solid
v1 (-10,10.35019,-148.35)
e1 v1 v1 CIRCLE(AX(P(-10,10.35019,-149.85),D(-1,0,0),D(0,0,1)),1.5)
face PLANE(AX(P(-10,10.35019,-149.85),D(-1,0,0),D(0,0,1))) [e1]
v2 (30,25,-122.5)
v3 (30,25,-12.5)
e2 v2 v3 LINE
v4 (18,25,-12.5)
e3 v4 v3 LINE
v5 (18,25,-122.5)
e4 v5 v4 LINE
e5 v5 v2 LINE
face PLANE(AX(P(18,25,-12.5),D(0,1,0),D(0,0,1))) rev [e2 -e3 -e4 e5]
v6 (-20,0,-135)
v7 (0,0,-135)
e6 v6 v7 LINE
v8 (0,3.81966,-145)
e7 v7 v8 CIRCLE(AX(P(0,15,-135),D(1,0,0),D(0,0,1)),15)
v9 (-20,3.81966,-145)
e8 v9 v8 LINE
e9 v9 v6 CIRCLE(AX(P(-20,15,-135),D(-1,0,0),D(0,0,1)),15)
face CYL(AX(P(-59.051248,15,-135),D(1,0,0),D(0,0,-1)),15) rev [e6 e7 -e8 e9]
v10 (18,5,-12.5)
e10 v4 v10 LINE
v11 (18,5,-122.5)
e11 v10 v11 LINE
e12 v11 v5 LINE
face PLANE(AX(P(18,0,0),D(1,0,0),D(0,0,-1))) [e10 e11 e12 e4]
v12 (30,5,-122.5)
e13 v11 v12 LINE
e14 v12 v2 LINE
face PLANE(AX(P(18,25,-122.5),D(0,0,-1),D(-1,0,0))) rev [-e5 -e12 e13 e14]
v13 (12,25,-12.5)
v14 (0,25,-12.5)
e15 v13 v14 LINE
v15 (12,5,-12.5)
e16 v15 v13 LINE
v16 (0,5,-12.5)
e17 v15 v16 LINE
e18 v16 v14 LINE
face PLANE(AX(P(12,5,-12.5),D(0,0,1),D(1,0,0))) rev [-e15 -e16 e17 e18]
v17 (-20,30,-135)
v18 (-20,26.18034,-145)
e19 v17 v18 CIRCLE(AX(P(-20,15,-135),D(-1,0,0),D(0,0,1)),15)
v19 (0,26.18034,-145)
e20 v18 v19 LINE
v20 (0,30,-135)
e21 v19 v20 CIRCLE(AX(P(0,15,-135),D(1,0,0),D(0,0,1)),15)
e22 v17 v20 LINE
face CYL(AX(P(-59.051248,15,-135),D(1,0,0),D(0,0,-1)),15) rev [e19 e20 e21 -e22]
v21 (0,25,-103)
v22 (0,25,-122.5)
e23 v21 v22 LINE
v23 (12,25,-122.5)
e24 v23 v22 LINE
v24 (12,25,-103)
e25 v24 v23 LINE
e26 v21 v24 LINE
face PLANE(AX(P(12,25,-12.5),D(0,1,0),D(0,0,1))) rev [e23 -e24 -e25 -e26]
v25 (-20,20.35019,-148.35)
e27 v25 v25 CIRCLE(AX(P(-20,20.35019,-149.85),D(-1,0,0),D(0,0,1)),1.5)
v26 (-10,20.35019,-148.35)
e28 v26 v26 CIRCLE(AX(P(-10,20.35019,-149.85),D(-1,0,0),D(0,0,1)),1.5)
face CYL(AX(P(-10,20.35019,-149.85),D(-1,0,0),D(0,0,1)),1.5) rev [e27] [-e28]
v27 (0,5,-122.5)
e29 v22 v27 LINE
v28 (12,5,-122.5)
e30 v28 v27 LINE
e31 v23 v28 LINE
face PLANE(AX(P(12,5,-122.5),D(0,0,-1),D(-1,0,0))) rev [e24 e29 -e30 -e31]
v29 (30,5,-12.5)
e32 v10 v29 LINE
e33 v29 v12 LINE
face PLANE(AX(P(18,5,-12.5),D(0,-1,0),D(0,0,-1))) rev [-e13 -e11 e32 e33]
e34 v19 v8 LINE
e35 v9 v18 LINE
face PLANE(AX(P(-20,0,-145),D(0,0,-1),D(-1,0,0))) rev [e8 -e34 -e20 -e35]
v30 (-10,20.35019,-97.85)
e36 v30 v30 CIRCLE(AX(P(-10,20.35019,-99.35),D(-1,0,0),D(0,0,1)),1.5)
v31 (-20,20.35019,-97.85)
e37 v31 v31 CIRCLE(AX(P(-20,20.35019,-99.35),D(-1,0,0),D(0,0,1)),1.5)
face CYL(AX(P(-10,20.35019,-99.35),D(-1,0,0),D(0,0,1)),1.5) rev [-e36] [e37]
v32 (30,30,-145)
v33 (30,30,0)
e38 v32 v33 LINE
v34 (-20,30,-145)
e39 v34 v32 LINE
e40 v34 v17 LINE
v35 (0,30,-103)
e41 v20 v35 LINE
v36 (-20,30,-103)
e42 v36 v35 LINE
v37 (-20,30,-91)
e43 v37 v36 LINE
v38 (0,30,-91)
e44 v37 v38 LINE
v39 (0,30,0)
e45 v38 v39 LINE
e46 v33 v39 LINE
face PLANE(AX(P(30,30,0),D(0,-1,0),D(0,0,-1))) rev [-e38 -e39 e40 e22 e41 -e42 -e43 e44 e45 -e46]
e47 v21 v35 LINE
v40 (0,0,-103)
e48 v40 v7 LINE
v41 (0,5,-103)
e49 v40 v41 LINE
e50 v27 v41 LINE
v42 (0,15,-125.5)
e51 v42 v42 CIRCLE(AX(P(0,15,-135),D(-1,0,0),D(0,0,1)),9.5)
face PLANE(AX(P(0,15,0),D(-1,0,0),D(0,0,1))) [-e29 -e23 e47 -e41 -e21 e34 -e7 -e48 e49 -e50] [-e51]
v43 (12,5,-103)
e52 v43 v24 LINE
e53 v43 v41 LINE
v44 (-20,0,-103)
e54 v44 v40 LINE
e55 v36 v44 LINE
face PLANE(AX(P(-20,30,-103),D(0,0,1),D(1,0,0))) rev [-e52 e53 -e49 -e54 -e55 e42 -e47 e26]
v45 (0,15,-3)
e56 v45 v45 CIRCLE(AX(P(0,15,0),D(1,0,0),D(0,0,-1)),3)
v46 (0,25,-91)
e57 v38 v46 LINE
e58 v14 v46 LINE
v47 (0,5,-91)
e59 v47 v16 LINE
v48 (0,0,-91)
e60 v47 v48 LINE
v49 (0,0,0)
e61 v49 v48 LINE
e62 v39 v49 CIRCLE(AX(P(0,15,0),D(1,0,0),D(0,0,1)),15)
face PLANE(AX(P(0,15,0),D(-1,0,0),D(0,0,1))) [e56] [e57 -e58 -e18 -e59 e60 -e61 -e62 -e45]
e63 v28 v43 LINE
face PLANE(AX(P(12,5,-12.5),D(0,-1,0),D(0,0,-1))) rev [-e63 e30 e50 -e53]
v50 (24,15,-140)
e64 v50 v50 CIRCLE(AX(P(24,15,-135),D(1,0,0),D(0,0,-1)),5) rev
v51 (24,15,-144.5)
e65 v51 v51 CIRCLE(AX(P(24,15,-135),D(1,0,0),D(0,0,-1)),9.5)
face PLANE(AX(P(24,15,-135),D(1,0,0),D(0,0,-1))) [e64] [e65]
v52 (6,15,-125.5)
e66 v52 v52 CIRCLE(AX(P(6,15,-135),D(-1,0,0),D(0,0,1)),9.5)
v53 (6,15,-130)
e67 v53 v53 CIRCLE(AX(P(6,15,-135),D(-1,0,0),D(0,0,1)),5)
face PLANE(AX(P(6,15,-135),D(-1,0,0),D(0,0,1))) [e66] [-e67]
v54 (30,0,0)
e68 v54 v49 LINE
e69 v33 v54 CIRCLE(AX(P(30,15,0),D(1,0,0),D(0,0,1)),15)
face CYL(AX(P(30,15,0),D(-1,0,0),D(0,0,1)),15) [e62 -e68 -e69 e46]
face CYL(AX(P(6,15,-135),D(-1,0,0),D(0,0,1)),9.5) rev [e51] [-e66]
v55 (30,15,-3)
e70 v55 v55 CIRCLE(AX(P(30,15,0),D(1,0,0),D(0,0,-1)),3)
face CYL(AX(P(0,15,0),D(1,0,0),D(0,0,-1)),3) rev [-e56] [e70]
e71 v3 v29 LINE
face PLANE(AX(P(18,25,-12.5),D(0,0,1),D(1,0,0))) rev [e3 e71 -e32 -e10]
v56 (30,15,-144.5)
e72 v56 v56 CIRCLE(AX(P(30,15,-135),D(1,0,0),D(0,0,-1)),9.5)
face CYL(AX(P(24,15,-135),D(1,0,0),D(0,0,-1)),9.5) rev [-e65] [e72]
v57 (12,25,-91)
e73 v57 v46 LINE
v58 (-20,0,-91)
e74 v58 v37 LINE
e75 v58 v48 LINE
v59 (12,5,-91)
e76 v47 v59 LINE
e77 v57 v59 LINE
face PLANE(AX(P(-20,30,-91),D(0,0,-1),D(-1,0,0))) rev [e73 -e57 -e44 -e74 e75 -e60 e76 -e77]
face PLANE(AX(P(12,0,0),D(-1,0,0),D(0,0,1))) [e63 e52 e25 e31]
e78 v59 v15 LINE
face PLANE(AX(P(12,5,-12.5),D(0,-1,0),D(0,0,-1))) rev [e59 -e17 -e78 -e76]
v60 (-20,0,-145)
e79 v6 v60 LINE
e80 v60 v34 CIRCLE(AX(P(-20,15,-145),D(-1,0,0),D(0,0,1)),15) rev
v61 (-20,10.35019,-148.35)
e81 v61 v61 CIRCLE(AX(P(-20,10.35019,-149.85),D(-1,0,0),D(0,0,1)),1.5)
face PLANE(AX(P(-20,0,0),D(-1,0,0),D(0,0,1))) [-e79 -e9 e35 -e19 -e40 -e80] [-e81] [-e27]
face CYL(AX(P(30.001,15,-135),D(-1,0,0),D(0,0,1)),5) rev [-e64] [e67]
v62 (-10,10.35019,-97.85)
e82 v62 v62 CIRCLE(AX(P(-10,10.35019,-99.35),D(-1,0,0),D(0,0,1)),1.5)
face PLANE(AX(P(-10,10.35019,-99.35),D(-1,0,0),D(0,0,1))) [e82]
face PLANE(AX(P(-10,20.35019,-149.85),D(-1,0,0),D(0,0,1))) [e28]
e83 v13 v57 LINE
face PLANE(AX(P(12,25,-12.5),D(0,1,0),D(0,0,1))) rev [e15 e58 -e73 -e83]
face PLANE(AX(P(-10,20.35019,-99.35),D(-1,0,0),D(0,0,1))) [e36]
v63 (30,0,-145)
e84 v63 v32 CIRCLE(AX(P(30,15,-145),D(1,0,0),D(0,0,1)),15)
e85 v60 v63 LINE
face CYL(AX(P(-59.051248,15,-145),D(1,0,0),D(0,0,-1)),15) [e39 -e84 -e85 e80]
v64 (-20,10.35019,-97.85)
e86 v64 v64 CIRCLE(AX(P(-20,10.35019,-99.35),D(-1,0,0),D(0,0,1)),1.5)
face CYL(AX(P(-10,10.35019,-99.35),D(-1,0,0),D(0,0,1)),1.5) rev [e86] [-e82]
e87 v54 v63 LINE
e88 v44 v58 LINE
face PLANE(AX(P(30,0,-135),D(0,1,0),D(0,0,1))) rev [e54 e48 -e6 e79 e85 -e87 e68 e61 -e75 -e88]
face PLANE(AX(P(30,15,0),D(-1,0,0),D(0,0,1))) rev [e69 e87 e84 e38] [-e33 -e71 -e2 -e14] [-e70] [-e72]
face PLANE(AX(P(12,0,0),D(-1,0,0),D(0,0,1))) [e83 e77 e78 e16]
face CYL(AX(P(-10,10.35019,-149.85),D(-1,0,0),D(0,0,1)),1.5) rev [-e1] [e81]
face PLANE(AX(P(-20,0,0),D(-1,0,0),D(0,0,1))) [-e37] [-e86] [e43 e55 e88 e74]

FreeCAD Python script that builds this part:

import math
import FreeCAD as App
import Part
import Sketcher
from FreeCAD import Vector
Q = App.Units.Quantity

doc = App.newDocument("Part")
body = doc.addObject("PartDesign::Body", "Body")

# Sketch on YZ plane
sketch1 = doc.addObject("Sketcher::SketchObject", "Sketch")
body.addObject(sketch1)
sketch1.AttachmentSupport = (doc.YZ_Plane, [""])
sketch1.MapMode = "FlatFace"
sketch1.addGeometry(Part.LineSegment(Vector(30, -135, 0), Vector(30, 0, 0)), False)
sketch1.addGeometry(Part.ArcOfCircle(Part.Circle(Vector(15, 0, 0), Vector(0, 0, 1), 15), math.radians(0), math.radians(180)), False)
sketch1.addGeometry(Part.LineSegment(Vector(0, 0, 0), Vector(0, -135, 0)), False)
sketch1.addGeometry(Part.ArcOfCircle(Part.Circle(Vector(15, -135, 0), Vector(0, 0, 1), 15), math.radians(180), math.radians(360)), False)
sketch1.addConstraint(Sketcher.Constraint("Tangent", 0, 2, 1, 1))
sketch1.addConstraint(Sketcher.Constraint("Tangent", 1, 2, 2, 1))
sketch1.addConstraint(Sketcher.Constraint("Tangent", 2, 2, 3, 1))
sketch1.addConstraint(Sketcher.Constraint("Tangent", 3, 2, 0, 1))
sketch1.addConstraint(Sketcher.Constraint("Vertical", 0))
sketch1.addConstraint(Sketcher.Constraint("Vertical", 2))
sketch1.addConstraint(Sketcher.Constraint("Coincident", 1, 2, -1, 1))
sketch1.addConstraint(Sketcher.Constraint("Radius", 1, Q("15 mm")))
sketch1.addConstraint(Sketcher.Constraint("DistanceY", 0, 1, 0, 2, Q("135 mm")))
pad1 = doc.addObject("PartDesign::Pad", "Pad")
body.addObject(pad1)
pad1.Profile = sketch1
pad1.Length = 30

# Sketch on YZ plane
sketch2 = doc.addObject("Sketcher::SketchObject", "Sketch001")
body.addObject(sketch2)
sketch2.AttachmentSupport = (doc.YZ_Plane, [""])
sketch2.MapMode = "FlatFace"
sketch2.AttachmentOffset = App.Placement(Vector(0, 0, 30), App.Rotation())
sketch2.addGeometry(Part.Circle(Vector(15, 0, 0), Vector(0, 0, 1), 3), False)
sketch2.addConstraint(Sketcher.Constraint("PointOnObject", 0, 3, -1))
sketch2.addConstraint(Sketcher.Constraint("Diameter", 0, Q("6 mm")))
sketch2.addConstraint(Sketcher.Constraint("DistanceX", -1, 1, 0, 3, Q("15 mm")))
pocket1 = doc.addObject("PartDesign::Pocket", "Pocket")
body.addObject(pocket1)
pocket1.Profile = sketch2
pocket1.Length = 30

# Sketch on YZ plane
sketch3 = doc.addObject("Sketcher::SketchObject", "Sketch002")
body.addObject(sketch3)
sketch3.AttachmentSupport = (doc.YZ_Plane, [""])
sketch3.MapMode = "FlatFace"
sketch3.AttachmentOffset = App.Placement(Vector(0, 0, 30), App.Rotation())
sketch3.addGeometry(Part.Circle(Vector(15, -135, 0), Vector(0, 0, 1), 10), False)
sketch3.addConstraint(Sketcher.Constraint("Diameter", 0, Q("19 mm")))
sketch3.addConstraint(Sketcher.Constraint("DistanceX", -1, 1, 0, 3, Q("15 mm")))
sketch3.addConstraint(Sketcher.Constraint("DistanceY", 0, 3, -1, 1, Q("135 mm")))
pocket2 = doc.addObject("PartDesign::Pocket", "Pocket001")
body.addObject(pocket2)
pocket2.Profile = sketch3
pocket2.Length = 6

# Sketch on YZ plane
sketch4 = doc.addObject("Sketcher::SketchObject", "Sketch003")
body.addObject(sketch4)
sketch4.AttachmentSupport = (doc.YZ_Plane, [""])
sketch4.MapMode = "FlatFace"
sketch4.addGeometry(Part.Circle(Vector(15, -135, 0), Vector(0, 0, 1), 10), False)
sketch4.addConstraint(Sketcher.Constraint("Diameter", 0, Q("19 mm")))
sketch4.addConstraint(Sketcher.Constraint("DistanceX", -1, 1, 0, 3, Q("15 mm")))
sketch4.addConstraint(Sketcher.Constraint("DistanceY", 0, 3, -1, 1, Q("135 mm")))
pocket3 = doc.addObject("PartDesign::Pocket", "Pocket002")
body.addObject(pocket3)
pocket3.Profile = sketch4
pocket3.Length = 6
pocket3.Reversed = True

# Sketch on YZ plane
sketch5 = doc.addObject("Sketcher::SketchObject", "Sketch004")
body.addObject(sketch5)
sketch5.AttachmentSupport = (doc.YZ_Plane, [""])
sketch5.MapMode = "FlatFace"
sketch5.AttachmentOffset = App.Placement(Vector(0, 0, 6), App.Rotation())
sketch5.addGeometry(Part.Circle(Vector(15, -135, 0), Vector(0, 0, 1), 5), False)
sketch5.addConstraint(Sketcher.Constraint("Diameter", 0, Q("10 mm")))
sketch5.addConstraint(Sketcher.Constraint("DistanceX", -1, 1, 0, 3, Q("15 mm")))
sketch5.addConstraint(Sketcher.Constraint("DistanceY", 0, 3, -1, 1, Q("135 mm")))
pocket4 = doc.addObject("PartDesign::Pocket", "Pocket003")
body.addObject(pocket4)
pocket4.Profile = sketch5
pocket4.Type = "UpToFirst"
pocket4.Reversed = True

# Sketch on YZ plane
sketch6 = doc.addObject("Sketcher::SketchObject", "Sketch005")
body.addObject(sketch6)
sketch6.AttachmentSupport = (doc.YZ_Plane, [""])
sketch6.MapMode = "FlatFace"
sketch6.AttachmentOffset = App.Placement(Vector(0, 0, 30), App.Rotation())
sketch6.addGeometry(Part.LineSegment(Vector(25, -12, 0), Vector(5, -12, 0)), False)
sketch6.addGeometry(Part.LineSegment(Vector(5, -12, 0), Vector(5, -122, 0)), False)
sketch6.addGeometry(Part.LineSegment(Vector(5, -122, 0), Vector(25, -122, 0)), False)
sketch6.addGeometry(Part.LineSegment(Vector(25, -122, 0), Vector(25, -12, 0)), False)
sketch6.addConstraint(Sketcher.Constraint("Coincident", 0, 2, 1, 1))
sketch6.addConstraint(Sketcher.Constraint("Coincident", 1, 2, 2, 1))
sketch6.addConstraint(Sketcher.Constraint("Coincident", 2, 2, 3, 1))
sketch6.addConstraint(Sketcher.Constraint("Coincident", 3, 2, 0, 1))
sketch6.addConstraint(Sketcher.Constraint("Horizontal", 0))
sketch6.addConstraint(Sketcher.Constraint("Vertical", 1))
sketch6.addConstraint(Sketcher.Constraint("Horizontal", 2))
sketch6.addConstraint(Sketcher.Constraint("Vertical", 3))
sketch6.addConstraint(Sketcher.Constraint("DistanceX", 0, 2, 0, 1, Q("20 mm")))
sketch6.addConstraint(Sketcher.Constraint("DistanceY", 1, 2, 1, 1, Q("110 mm")))
sketch6.addConstraint(Sketcher.Constraint("DistanceX", -1, 1, 0, 2, Q("5 mm")))
sketch6.addConstraint(Sketcher.Constraint("DistanceY", 0, 2, -1, 1, Q("12.5 mm")))
pocket5 = doc.addObject("PartDesign::Pocket", "Pocket004")
body.addObject(pocket5)
pocket5.Profile = sketch6
pocket5.Length = 12

# Sketch on YZ plane
sketch7 = doc.addObject("Sketcher::SketchObject", "Sketch006")
body.addObject(sketch7)
sketch7.AttachmentSupport = (doc.YZ_Plane, [""])
sketch7.MapMode = "FlatFace"
sketch7.addGeometry(Part.LineSegment(Vector(25, -122, 0), Vector(5, -122, 0)), False)
sketch7.addGeometry(Part.LineSegment(Vector(5, -122, 0), Vector(5, -12, 0)), False)
sketch7.addGeometry(Part.LineSegment(Vector(5, -12, 0), Vector(25, -12, 0)), False)
sketch7.addGeometry(Part.LineSegment(Vector(25, -12, 0), Vector(25, -122, 0)), False)
sketch7.addConstraint(Sketcher.Constraint("Coincident", 0, 2, 1, 1))
sketch7.addConstraint(Sketcher.Constraint("Coincident", 1, 2, 2, 1))
sketch7.addConstraint(Sketcher.Constraint("Coincident", 2, 2, 3, 1))
sketch7.addConstraint(Sketcher.Constraint("Coincident", 3, 2, 0, 1))
sketch7.addConstraint(Sketcher.Constraint("Horizontal", 0))
sketch7.addConstraint(Sketcher.Constraint("Vertical", 1))
sketch7.addConstraint(Sketcher.Constraint("Horizontal", 2))
sketch7.addConstraint(Sketcher.Constraint("Vertical", 3))
sketch7.addConstraint(Sketcher.Constraint("DistanceX", 0, 2, 0, 1, Q("20 mm")))
sketch7.addConstraint(Sketcher.Constraint("DistanceY", 1, 1, 1, 2, Q("110 mm")))
sketch7.addConstraint(Sketcher.Constraint("DistanceX", -1, 1, 0, 2, Q("5 mm")))
sketch7.addConstraint(Sketcher.Constraint("DistanceY", 0, 2, -1, 1, Q("122.5 mm")))
pocket6 = doc.addObject("PartDesign::Pocket", "Pocket005")
body.addObject(pocket6)
pocket6.Profile = sketch7
pocket6.Length = 12
pocket6.Reversed = True

# Sketch on YZ plane
sketch8 = doc.addObject("Sketcher::SketchObject", "Sketch007")
body.addObject(sketch8)
sketch8.AttachmentSupport = (doc.YZ_Plane, [""])
sketch8.MapMode = "FlatFace"
sketch8.AttachmentOffset = App.Placement(Vector(0, 0, 12), App.Rotation())
sketch8.addGeometry(Part.LineSegment(Vector(30, -103, 0), Vector(0, -103, 0)), False)
sketch8.addGeometry(Part.LineSegment(Vector(0, -103, 0), Vector(0, -91, 0)), False)
sketch8.addGeometry(Part.LineSegment(Vector(0, -91, 0), Vector(30, -91, 0)), False)
sketch8.addGeometry(Part.LineSegment(Vector(30, -91, 0), Vector(30, -103, 0)), False)
sketch8.addGeometry(Part.LineSegment(Vector(30, -157, 0), Vector(0, -157, 0)), False)
sketch8.addGeometry(Part.LineSegment(Vector(0, -157, 0), Vector(0, -145, 0)), False)
sketch8.addGeometry(Part.LineSegment(Vector(0, -145, 0), Vector(30, -145, 0)), False)
sketch8.addGeometry(Part.LineSegment(Vector(30, -145, 0), Vector(30, -157, 0)), False)
sketch8.addConstraint(Sketcher.Constraint("Coincident", 0, 2, 1, 1))
sketch8.addConstraint(Sketcher.Constraint("Coincident", 1, 2, 2, 1))
sketch8.addConstraint(Sketcher.Constraint("Coincident", 2, 2, 3, 1))
sketch8.addConstraint(Sketcher.Constraint("Coincident", 3, 2, 0, 1))
sketch8.addConstraint(Sketcher.Constraint("Coincident", 4, 2, 5, 1))
sketch8.addConstraint(Sketcher.Constraint("Coincident", 5, 2, 6, 1))
sketch8.addConstraint(Sketcher.Constraint("Coincident", 6, 2, 7, 1))
sketch8.addConstraint(Sketcher.Constraint("Coincident", 7, 2, 4, 1))
sketch8.addConstraint(Sketcher.Constraint("Horizontal", 0))
sketch8.addConstraint(Sketcher.Constraint("Vertical", 1))
sketch8.addConstraint(Sketcher.Constraint("Horizontal", 2))
sketch8.addConstraint(Sketcher.Constraint("Vertical", 3))
sketch8.addConstraint(Sketcher.Constraint("Horizontal", 4))
sketch8.addConstraint(Sketcher.Constraint("Vertical", 5))
sketch8.addConstraint(Sketcher.Constraint("Horizontal", 6))
sketch8.addConstraint(Sketcher.Constraint("Vertical", 7))
sketch8.addConstraint(Sketcher.Constraint("PointOnObject", 0, 2, -2))
sketch8.addConstraint(Sketcher.Constraint("PointOnObject", 4, 2, -2))
sketch8.addConstraint(Sketcher.Constraint("Vertical", 3, 2, 6, 2))
sketch8.addConstraint(Sketcher.Constraint("Equal", 3, 5))
sketch8.addConstraint(Sketcher.Constraint("DistanceX", 0, 2, 0, 1, Q("30 mm")))
sketch8.addConstraint(Sketcher.Constraint("DistanceY", 1, 1, 1, 2, Q("12 mm")))
sketch8.addConstraint(Sketcher.Constraint("DistanceY", 0, 2, -1, 1, Q("103 mm")))
sketch8.addConstraint(Sketcher.Constraint("DistanceY", 4, 2, -1, 1, Q("157 mm")))
pad2 = doc.addObject("PartDesign::Pad", "Pad001")
body.addObject(pad2)
pad2.Profile = sketch8
pad2.Length = 32
pad2.Reversed = True

# Sketch on YZ plane
sketch9 = doc.addObject("Sketcher::SketchObject", "Sketch008")
body.addObject(sketch9)
sketch9.AttachmentSupport = (doc.YZ_Plane, [""])
sketch9.MapMode = "FlatFace"
sketch9.AttachmentOffset = App.Placement(Vector(0, 0, 12), App.Rotation())
sketch9.addGeometry(Part.LineSegment(Vector(30, -145, 0), Vector(26.2, -145, 0)), False)
sketch9.addGeometry(Part.ArcOfCircle(Part.Circle(Vector(15, -135, 0), Vector(0, 0, 1), 15), math.radians(-138), math.radians(-42)), False)
sketch9.addGeometry(Part.LineSegment(Vector(3.8, -145, 0), Vector(0, -145, 0)), False)
sketch9.addGeometry(Part.LineSegment(Vector(0, -145, 0), Vector(0, -157, 0)), False)
sketch9.addGeometry(Part.LineSegment(Vector(0, -157, 0), Vector(30, -157, 0)), False)
sketch9.addGeometry(Part.LineSegment(Vector(30, -157, 0), Vector(30, -145, 0)), False)
sketch9.addConstraint(Sketcher.Constraint("Coincident", 0, 2, 1, 2))
sketch9.addConstraint(Sketcher.Constraint("Coincident", 1, 1, 2, 1))
sketch9.addConstraint(Sketcher.Constraint("Coincident", 2, 2, 3, 1))
sketch9.addConstraint(Sketcher.Constraint("Coincident", 3, 2, 4, 1))
sketch9.addConstraint(Sketcher.Constraint("Coincident", 4, 2, 5, 1))
sketch9.addConstraint(Sketcher.Constraint("Coincident", 5, 2, 0, 1))
sketch9.addConstraint(Sketcher.Constraint("Horizontal", 0))
sketch9.addConstraint(Sketcher.Constraint("Horizontal", 2))
sketch9.addConstraint(Sketcher.Constraint("Vertical", 3))
sketch9.addConstraint(Sketcher.Constraint("Horizontal", 4))
sketch9.addConstraint(Sketcher.Constraint("Vertical", 5))
sketch9.addConstraint(Sketcher.Constraint("PointOnObject", 2, 2, -2))
sketch9.addConstraint(Sketcher.Constraint("Horizontal", 0, 2, 1, 1))
sketch9.addConstraint(Sketcher.Constraint("Equal", 0, 2))
sketch9.addConstraint(Sketcher.Constraint("Radius", 1, Q("15 mm")))
sketch9.addConstraint(Sketcher.Constraint("DistanceX", 4, 1, 4, 2, Q("30 mm")))
sketch9.addConstraint(Sketcher.Constraint("DistanceY", 3, 2, 3, 1, Q("12 mm")))
sketch9.addConstraint(Sketcher.Constraint("DistanceY", 1, 3, -1, 1, Q("135 mm")))
sketch9.addConstraint(Sketcher.Constraint("DistanceY", 0, 2, -1, 1, Q("145 mm")))
pocket7 = doc.addObject("PartDesign::Pocket", "Pocket006")
body.addObject(pocket7)
pocket7.Profile = sketch9
pocket7.Length = 35

# Sketch on YZ plane
sketch10 = doc.addObject("Sketcher::SketchObject", "Sketch009")
body.addObject(sketch10)
sketch10.AttachmentSupport = (doc.YZ_Plane, [""])
sketch10.MapMode = "FlatFace"
sketch10.AttachmentOffset = App.Placement(Vector(0, 0, 30), App.Rotation())
sketch10.addGeometry(Part.LineSegment(Vector(30, -145, 0), Vector(30, -135, 0)), False)
sketch10.addGeometry(Part.ArcOfCircle(Part.Circle(Vector(15, -135, 0), Vector(0, 0, 1), 15), math.radians(180), math.radians(360)), False)
sketch10.addGeometry(Part.LineSegment(Vector(0, -135, 0), Vector(0, -145, 0)), False)
sketch10.addGeometry(Part.ArcOfCircle(Part.Circle(Vector(15, -145, 0), Vector(0, 0, 1), 15), math.radians(180), math.radians(360)), False)
sketch10.addConstraint(Sketcher.Constraint("Tangent", 0, 2, 1, 2))
sketch10.addConstraint(Sketcher.Constraint("Tangent", 1, 1, 2, 1))
sketch10.addConstraint(Sketcher.Constraint("Tangent", 2, 2, 3, 1))
sketch10.addConstraint(Sketcher.Constraint("Tangent", 3, 2, 0, 1))
sketch10.addConstraint(Sketcher.Constraint("Vertical", 0))
sketch10.addConstraint(Sketcher.Constraint("Vertical", 2))
sketch10.addConstraint(Sketcher.Constraint("PointOnObject", 1, 1, -2))
sketch10.addConstraint(Sketcher.Constraint("Radius", 1, Q("15 mm")))
sketch10.addConstraint(Sketcher.Constraint("DistanceY", 0, 1, 0, 2, Q("10 mm")))
sketch10.addConstraint(Sketcher.Constraint("DistanceY", 1, 3, -1, 1, Q("135 mm")))
pad3 = doc.addObject("PartDesign::Pad", "Pad002")
body.addObject(pad3)
pad3.Profile = sketch10
pad3.Length = 50
pad3.Reversed = True

# Sketch on YZ plane
sketch11 = doc.addObject("Sketcher::SketchObject", "Sketch010")
body.addObject(sketch11)
sketch11.AttachmentSupport = (doc.YZ_Plane, [""])
sketch11.MapMode = "FlatFace"
sketch11.AttachmentOffset = App.Placement(Vector(0, 0, -20), App.Rotation())
sketch11.addGeometry(Part.Circle(Vector(10.4, -149.8, 0), Vector(0, 0, 1), 1.5), False)
sketch11.addConstraint(Sketcher.Constraint("Diameter", 0, Q("3 mm")))
sketch11.addConstraint(Sketcher.Constraint("DistanceY", 0, 3, -1, 1, Q("149.85 mm")))
sketch11.addConstraint(Sketcher.Constraint("DistanceX", -1, 1, 0, 3, Q("10.35019 mm")))
pocket8 = doc.addObject("PartDesign::Pocket", "Pocket007")
body.addObject(pocket8)
pocket8.Profile = sketch11
pocket8.Length = 10
pocket8.Reversed = True

# Sketch on YZ plane
sketch12 = doc.addObject("Sketcher::SketchObject", "Sketch011")
body.addObject(sketch12)
sketch12.AttachmentSupport = (doc.YZ_Plane, [""])
sketch12.MapMode = "FlatFace"
sketch12.AttachmentOffset = App.Placement(Vector(0, 0, -20), App.Rotation())
sketch12.addGeometry(Part.Circle(Vector(20.4, -149.8, 0), Vector(0, 0, 1), 1.5), False)
sketch12.addGeometry(Part.Circle(Vector(20.4, -99.3, 0), Vector(0, 0, 1), 1.5), False)
sketch12.addConstraint(Sketcher.Constraint("Equal", 0, 1))
sketch12.addConstraint(Sketcher.Constraint("Vertical", 0, 3, 1, 3))
sketch12.addConstraint(Sketcher.Constraint("Diameter", 0, Q("3 mm")))
sketch12.addConstraint(Sketcher.Constraint("DistanceY", 0, 3, 1, 3, Q("50.5 mm")))
sketch12.addConstraint(Sketcher.Constraint("DistanceY", 0, 3, -1, 1, Q("149.85 mm")))
sketch12.addConstraint(Sketcher.Constraint("DistanceX", -1, 1, 0, 3, Q("20.35019 mm")))
pocket9 = doc.addObject("PartDesign::Pocket", "Pocket008")
body.addObject(pocket9)
pocket9.Profile = sketch12
pocket9.Length = 10
pocket9.Reversed = True

# Sketch on YZ plane
sketch13 = doc.addObject("Sketcher::SketchObject", "Sketch012")
body.addObject(sketch13)
sketch13.AttachmentSupport = (doc.YZ_Plane, [""])
sketch13.MapMode = "FlatFace"
sketch13.AttachmentOffset = App.Placement(Vector(0, 0, -20), App.Rotation())
sketch13.addGeometry(Part.Circle(Vector(10.4, -99.3, 0), Vector(0, 0, 1), 1.5), False)
sketch13.addConstraint(Sketcher.Constraint("Diameter", 0, Q("3 mm")))
sketch13.addConstraint(Sketcher.Constraint("DistanceY", 0, 3, -1, 1, Q("99.35 mm")))
sketch13.addConstraint(Sketcher.Constraint("DistanceX", -1, 1, 0, 3, Q("10.35019 mm")))
pocket10 = doc.addObject("PartDesign::Pocket", "Pocket009")
body.addObject(pocket10)
pocket10.Profile = sketch13
pocket10.Length = 10
pocket10.Reversed = True

doc.recompute()
